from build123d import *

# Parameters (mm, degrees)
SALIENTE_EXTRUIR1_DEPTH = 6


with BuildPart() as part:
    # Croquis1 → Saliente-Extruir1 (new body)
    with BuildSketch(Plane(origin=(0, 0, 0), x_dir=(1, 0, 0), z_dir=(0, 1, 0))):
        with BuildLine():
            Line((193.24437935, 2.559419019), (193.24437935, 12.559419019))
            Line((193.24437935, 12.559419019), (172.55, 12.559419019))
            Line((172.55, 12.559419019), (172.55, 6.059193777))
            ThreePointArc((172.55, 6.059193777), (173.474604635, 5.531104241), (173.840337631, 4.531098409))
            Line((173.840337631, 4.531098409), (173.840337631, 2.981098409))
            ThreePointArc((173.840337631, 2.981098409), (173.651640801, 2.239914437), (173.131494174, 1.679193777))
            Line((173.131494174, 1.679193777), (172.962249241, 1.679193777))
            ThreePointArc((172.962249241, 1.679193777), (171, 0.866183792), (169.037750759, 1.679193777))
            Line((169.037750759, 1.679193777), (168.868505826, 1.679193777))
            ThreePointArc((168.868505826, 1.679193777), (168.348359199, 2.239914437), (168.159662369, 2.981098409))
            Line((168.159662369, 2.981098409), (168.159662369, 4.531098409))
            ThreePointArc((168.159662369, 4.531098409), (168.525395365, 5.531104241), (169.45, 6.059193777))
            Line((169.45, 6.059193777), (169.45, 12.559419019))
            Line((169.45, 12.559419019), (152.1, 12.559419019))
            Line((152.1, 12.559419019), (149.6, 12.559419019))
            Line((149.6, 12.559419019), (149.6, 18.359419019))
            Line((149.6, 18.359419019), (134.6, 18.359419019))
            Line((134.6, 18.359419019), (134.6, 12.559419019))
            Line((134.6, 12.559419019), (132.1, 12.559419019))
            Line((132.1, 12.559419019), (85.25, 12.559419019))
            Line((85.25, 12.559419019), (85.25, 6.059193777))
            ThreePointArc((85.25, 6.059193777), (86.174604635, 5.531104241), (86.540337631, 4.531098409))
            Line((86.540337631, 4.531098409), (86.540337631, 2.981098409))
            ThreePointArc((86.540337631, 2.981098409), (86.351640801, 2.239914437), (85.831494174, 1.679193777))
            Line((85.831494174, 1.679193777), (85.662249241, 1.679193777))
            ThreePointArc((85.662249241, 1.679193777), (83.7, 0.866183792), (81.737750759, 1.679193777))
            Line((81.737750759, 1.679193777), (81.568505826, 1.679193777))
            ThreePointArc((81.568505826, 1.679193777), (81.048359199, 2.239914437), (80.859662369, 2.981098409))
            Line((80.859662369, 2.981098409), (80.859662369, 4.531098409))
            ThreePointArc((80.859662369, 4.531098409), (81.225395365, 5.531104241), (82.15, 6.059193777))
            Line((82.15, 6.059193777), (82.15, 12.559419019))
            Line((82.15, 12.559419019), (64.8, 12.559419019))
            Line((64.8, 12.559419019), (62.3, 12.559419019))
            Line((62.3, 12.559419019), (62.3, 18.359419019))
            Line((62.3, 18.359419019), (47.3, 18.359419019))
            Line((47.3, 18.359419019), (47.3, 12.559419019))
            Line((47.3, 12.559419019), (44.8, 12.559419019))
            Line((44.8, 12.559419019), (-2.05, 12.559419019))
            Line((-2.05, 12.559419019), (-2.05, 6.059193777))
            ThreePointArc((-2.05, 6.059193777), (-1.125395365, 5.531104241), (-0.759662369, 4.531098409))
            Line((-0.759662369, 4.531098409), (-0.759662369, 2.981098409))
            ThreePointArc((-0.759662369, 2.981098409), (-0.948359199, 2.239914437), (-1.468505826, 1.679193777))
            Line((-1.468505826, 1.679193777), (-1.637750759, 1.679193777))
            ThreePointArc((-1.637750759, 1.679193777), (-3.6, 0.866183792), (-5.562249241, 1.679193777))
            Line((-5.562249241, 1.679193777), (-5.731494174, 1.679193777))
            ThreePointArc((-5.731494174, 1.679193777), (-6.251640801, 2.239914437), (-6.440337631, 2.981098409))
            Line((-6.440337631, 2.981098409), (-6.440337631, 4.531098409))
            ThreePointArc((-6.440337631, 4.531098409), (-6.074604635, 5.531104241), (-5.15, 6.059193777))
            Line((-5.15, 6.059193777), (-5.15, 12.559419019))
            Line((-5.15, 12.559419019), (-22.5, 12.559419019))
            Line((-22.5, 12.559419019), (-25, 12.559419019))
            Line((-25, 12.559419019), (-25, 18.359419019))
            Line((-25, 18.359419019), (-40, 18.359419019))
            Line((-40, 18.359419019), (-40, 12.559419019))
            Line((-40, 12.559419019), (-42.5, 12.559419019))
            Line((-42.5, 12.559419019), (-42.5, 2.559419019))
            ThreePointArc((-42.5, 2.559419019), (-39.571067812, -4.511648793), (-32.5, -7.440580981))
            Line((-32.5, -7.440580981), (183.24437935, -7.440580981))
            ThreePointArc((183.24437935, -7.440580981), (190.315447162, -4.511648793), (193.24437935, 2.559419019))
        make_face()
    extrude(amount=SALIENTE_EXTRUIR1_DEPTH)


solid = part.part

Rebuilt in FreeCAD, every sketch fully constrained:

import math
import FreeCAD as App
import Part
import Sketcher
from FreeCAD import Vector
Q = App.Units.Quantity

doc = App.newDocument("Part")
body = doc.addObject("PartDesign::Body", "Body")

# Sketch on XZ plane
sketch1 = doc.addObject("Sketcher::SketchObject", "Sketch")
body.addObject(sketch1)
sketch1.AttachmentSupport = (doc.XZ_Plane, [""])
sketch1.MapMode = "FlatFace"
sketch1.addGeometry([
    Part.LineSegment(Vector(193.24, -2.56, 0), Vector(193.24, -12.56, 0)),  # 0
    Part.LineSegment(Vector(193.24, -12.56, 0), Vector(172.55, -12.56, 0)),  # 1
    Part.LineSegment(Vector(172.55, -12.56, 0), Vector(172.55, -6.06, 0)),  # 2
    Part.ArcOfCircle(Part.Circle(Vector(172.29, -4.53, 0), Vector(0, 0, 1), 1.55), math.radians(-80), math.radians(0)),  # 3
    Part.LineSegment(Vector(173.84, -4.53, 0), Vector(173.84, -2.98, 0)),  # 4
    Part.ArcOfCircle(Part.Circle(Vector(172.29, -2.98, 0), Vector(0, 0, 1), 1.55), math.radians(0), math.radians(57)),  # 5
    Part.LineSegment(Vector(173.13, -1.68, 0), Vector(172.96, -1.68, 0)),  # 6
    Part.ArcOfCircle(Part.Circle(Vector(171, -3.64, 0), Vector(0, 0, 1), 2.77), math.radians(45), math.radians(135)),  # 7
    Part.LineSegment(Vector(169.04, -1.68, 0), Vector(168.87, -1.68, 0)),  # 8
    Part.ArcOfCircle(Part.Circle(Vector(169.71, -2.98, 0), Vector(0, 0, 1), 1.55), math.radians(123), math.radians(180)),  # 9
    Part.LineSegment(Vector(168.16, -2.98, 0), Vector(168.16, -4.53, 0)),  # 10
    Part.ArcOfCircle(Part.Circle(Vector(169.71, -4.53, 0), Vector(0, 0, 1), 1.55), math.radians(180), math.radians(260)),  # 11
    Part.LineSegment(Vector(169.45, -6.06, 0), Vector(169.45, -12.56, 0)),  # 12
    Part.LineSegment(Vector(169.45, -12.56, 0), Vector(149.6, -12.56, 0)),  # 13
    Part.LineSegment(Vector(149.6, -12.56, 0), Vector(149.6, -18.36, 0)),  # 14
    Part.LineSegment(Vector(149.6, -18.36, 0), Vector(134.6, -18.36, 0)),  # 15
    Part.LineSegment(Vector(134.6, -18.36, 0), Vector(134.6, -12.56, 0)),  # 16
    Part.LineSegment(Vector(134.6, -12.56, 0), Vector(85.25, -12.56, 0)),  # 17
    Part.LineSegment(Vector(85.25, -12.56, 0), Vector(85.25, -6.06, 0)),  # 18
    Part.ArcOfCircle(Part.Circle(Vector(84.99, -4.53, 0), Vector(0, 0, 1), 1.55), math.radians(-80), math.radians(0)),  # 19
    Part.LineSegment(Vector(86.54, -4.53, 0), Vector(86.54, -2.98, 0)),  # 20
    Part.ArcOfCircle(Part.Circle(Vector(84.99, -2.98, 0), Vector(0, 0, 1), 1.55), math.radians(0), math.radians(57)),  # 21
    Part.LineSegment(Vector(85.83, -1.68, 0), Vector(85.66, -1.68, 0)),  # 22
    Part.ArcOfCircle(Part.Circle(Vector(83.7, -3.64, 0), Vector(0, 0, 1), 2.77), math.radians(45), math.radians(135)),  # 23
    Part.LineSegment(Vector(81.74, -1.68, 0), Vector(81.57, -1.68, 0)),  # 24
    Part.ArcOfCircle(Part.Circle(Vector(82.41, -2.98, 0), Vector(0, 0, 1), 1.55), math.radians(123), math.radians(180)),  # 25
    Part.LineSegment(Vector(80.86, -2.98, 0), Vector(80.86, -4.53, 0)),  # 26
    Part.ArcOfCircle(Part.Circle(Vector(82.41, -4.53, 0), Vector(0, 0, 1), 1.55), math.radians(180), math.radians(260)),  # 27
    Part.LineSegment(Vector(82.15, -6.06, 0), Vector(82.15, -12.56, 0)),  # 28
    Part.LineSegment(Vector(82.15, -12.56, 0), Vector(62.3, -12.56, 0)),  # 29
    Part.LineSegment(Vector(62.3, -12.56, 0), Vector(62.3, -18.36, 0)),  # 30
    Part.LineSegment(Vector(62.3, -18.36, 0), Vector(47.3, -18.36, 0)),  # 31
    Part.LineSegment(Vector(47.3, -18.36, 0), Vector(47.3, -12.56, 0)),  # 32
    Part.LineSegment(Vector(47.3, -12.56, 0), Vector(-2.05, -12.56, 0)),  # 33
    Part.LineSegment(Vector(-2.05, -12.56, 0), Vector(-2.05, -6.06, 0)),  # 34
    Part.ArcOfCircle(Part.Circle(Vector(-2.31, -4.53, 0), Vector(0, 0, 1), 1.55), math.radians(-80), math.radians(0)),  # 35
    Part.LineSegment(Vector(-0.76, -4.53, 0), Vector(-0.76, -2.98, 0)),  # 36
    Part.ArcOfCircle(Part.Circle(Vector(-2.31, -2.98, 0), Vector(0, 0, 1), 1.55), math.radians(0), math.radians(57)),  # 37
    Part.LineSegment(Vector(-1.47, -1.68, 0), Vector(-1.64, -1.68, 0)),  # 38
    Part.ArcOfCircle(Part.Circle(Vector(-3.6, -3.64, 0), Vector(0, 0, 1), 2.77), math.radians(45), math.radians(135)),  # 39
    Part.LineSegment(Vector(-5.56, -1.68, 0), Vector(-5.73, -1.68, 0)),  # 40
    Part.ArcOfCircle(Part.Circle(Vector(-4.89, -2.98, 0), Vector(0, 0, 1), 1.55), math.radians(123), math.radians(180)),  # 41
    Part.LineSegment(Vector(-6.44, -2.98, 0), Vector(-6.44, -4.53, 0)),  # 42
    Part.ArcOfCircle(Part.Circle(Vector(-4.89, -4.53, 0), Vector(0, 0, 1), 1.55), math.radians(180), math.radians(260)),  # 43
    Part.LineSegment(Vector(-5.15, -6.06, 0), Vector(-5.15, -12.56, 0)),  # 44
    Part.LineSegment(Vector(-5.15, -12.56, 0), Vector(-25, -12.56, 0)),  # 45
    Part.LineSegment(Vector(-25, -12.56, 0), Vector(-25, -18.36, 0)),  # 46
    Part.LineSegment(Vector(-25, -18.36, 0), Vector(-40, -18.36, 0)),  # 47
    Part.LineSegment(Vector(-40, -18.36, 0), Vector(-40, -12.56, 0)),  # 48
    Part.LineSegment(Vector(-40, -12.56, 0), Vector(-42.5, -12.56, 0)),  # 49
    Part.LineSegment(Vector(-42.5, -12.56, 0), Vector(-42.5, -2.56, 0)),  # 50
    Part.ArcOfCircle(Part.Circle(Vector(-32.5, -2.56, 0), Vector(0, 0, 1), 10), math.radians(90), math.radians(180)),  # 51
    Part.LineSegment(Vector(-32.5, 7.44, 0), Vector(183.24, 7.44, 0)),  # 52
    Part.ArcOfCircle(Part.Circle(Vector(183.24, -2.56, 0), Vector(0, 0, 1), 10), math.radians(0), math.radians(90)),  # 53
], False)
sketch1.addConstraint([
    Sketcher.Constraint("Coincident", 0, 2, 1, 1),
    Sketcher.Constraint("Coincident", 1, 2, 2, 1),
    Sketcher.Constraint("Coincident", 2, 2, 3, 1),
    Sketcher.Constraint("Tangent", 3, 2, 4, 1),
    Sketcher.Constraint("Tangent", 4, 2, 5, 1),
    Sketcher.Constraint("Coincident", 5, 2, 6, 1),
    Sketcher.Constraint("Coincident", 6, 2, 7, 1),
    Sketcher.Constraint("Coincident", 7, 2, 8, 1),
    Sketcher.Constraint("Coincident", 8, 2, 9, 1),
    Sketcher.Constraint("Tangent", 9, 2, 10, 1),
    Sketcher.Constraint("Tangent", 10, 2, 11, 1),
    Sketcher.Constraint("Coincident", 11, 2, 12, 1),
    Sketcher.Constraint("Coincident", 12, 2, 13, 1),
    Sketcher.Constraint("Coincident", 13, 2, 14, 1),
    Sketcher.Constraint("Coincident", 14, 2, 15, 1),
    Sketcher.Constraint("Coincident", 15, 2, 16, 1),
    Sketcher.Constraint("Coincident", 16, 2, 17, 1),
    Sketcher.Constraint("Coincident", 17, 2, 18, 1),
    Sketcher.Constraint("Coincident", 18, 2, 19, 1),
    Sketcher.Constraint("Tangent", 19, 2, 20, 1),
    Sketcher.Constraint("Tangent", 20, 2, 21, 1),
    Sketcher.Constraint("Coincident", 21, 2, 22, 1),
    Sketcher.Constraint("Coincident", 22, 2, 23, 1),
    Sketcher.Constraint("Coincident", 23, 2, 24, 1),
    Sketcher.Constraint("Coincident", 24, 2, 25, 1),
    Sketcher.Constraint("Tangent", 25, 2, 26, 1),
    Sketcher.Constraint("Tangent", 26, 2, 27, 1),
    Sketcher.Constraint("Coincident", 27, 2, 28, 1),
    Sketcher.Constraint("Coincident", 28, 2, 29, 1),
    Sketcher.Constraint("Coincident", 29, 2, 30, 1),
    Sketcher.Constraint("Coincident", 30, 2, 31, 1),
    Sketcher.Constraint("Coincident", 31, 2, 32, 1),
    Sketcher.Constraint("Coincident", 32, 2, 33, 1),
    Sketcher.Constraint("Coincident", 33, 2, 34, 1),
    Sketcher.Constraint("Coincident", 34, 2, 35, 1),
    Sketcher.Constraint("Tangent", 35, 2, 36, 1),
    Sketcher.Constraint("Tangent", 36, 2, 37, 1),
    Sketcher.Constraint("Coincident", 37, 2, 38, 1),
    Sketcher.Constraint("Coincident", 38, 2, 39, 1),
    Sketcher.Constraint("Coincident", 39, 2, 40, 1),
    Sketcher.Constraint("Coincident", 40, 2, 41, 1),
    Sketcher.Constraint("Tangent", 41, 2, 42, 1),
    Sketcher.Constraint("Tangent", 42, 2, 43, 1),
    Sketcher.Constraint("Coincident", 43, 2, 44, 1),
    Sketcher.Constraint("Coincident", 44, 2, 45, 1),
    Sketcher.Constraint("Coincident", 45, 2, 46, 1),
    Sketcher.Constraint("Coincident", 46, 2, 47, 1),
    Sketcher.Constraint("Coincident", 47, 2, 48, 1),
    Sketcher.Constraint("Coincident", 48, 2, 49, 1),
    Sketcher.Constraint("Coincident", 49, 2, 50, 1),
    Sketcher.Constraint("Tangent", 50, 2, 51, 2),
    Sketcher.Constraint("Tangent", 51, 1, 52, 1),
    Sketcher.Constraint("Tangent", 52, 2, 53, 2),
    Sketcher.Constraint("Tangent", 53, 1, 0, 1),
    Sketcher.Constraint("Vertical", 0),
    Sketcher.Constraint("Horizontal", 1),
    Sketcher.Constraint("Vertical", 2),
    Sketcher.Constraint("Vertical", 4),
    Sketcher.Constraint("Horizontal", 6),
    Sketcher.Constraint("Horizontal", 8),
    Sketcher.Constraint("Vertical", 10),
    Sketcher.Constraint("Vertical", 12),
    Sketcher.Constraint("Horizontal", 13),
    Sketcher.Constraint("Vertical", 14),
    Sketcher.Constraint("Horizontal", 15),
    Sketcher.Constraint("Vertical", 16),
    Sketcher.Constraint("Horizontal", 17),
    Sketcher.Constraint("Vertical", 18),
    Sketcher.Constraint("Vertical", 20),
    Sketcher.Constraint("Horizontal", 22),
    Sketcher.Constraint("Horizontal", 24),
    Sketcher.Constraint("Vertical", 26),
    Sketcher.Constraint("Vertical", 28),
    Sketcher.Constraint("Horizontal", 29),
    Sketcher.Constraint("Vertical", 30),
    Sketcher.Constraint("Horizontal", 31),
    Sketcher.Constraint("Vertical", 32),
    Sketcher.Constraint("Horizontal", 33),
    Sketcher.Constraint("Vertical", 34),
    Sketcher.Constraint("Vertical", 36),
    Sketcher.Constraint("Horizontal", 38),
    Sketcher.Constraint("Horizontal", 40),
    Sketcher.Constraint("Vertical", 42),
    Sketcher.Constraint("Vertical", 44),
    Sketcher.Constraint("Horizontal", 45),
    Sketcher.Constraint("Vertical", 46),
    Sketcher.Constraint("Horizontal", 47),
    Sketcher.Constraint("Vertical", 48),
    Sketcher.Constraint("Horizontal", 49),
    Sketcher.Constraint("Vertical", 50),
    Sketcher.Constraint("Horizontal", 52),
    Sketcher.Constraint("Equal", 3, 5),
    Sketcher.Constraint("Equal", 5, 9),
    Sketcher.Constraint("Equal", 9, 11),
    Sketcher.Constraint("Equal", 11, 19),
    Sketcher.Constraint("Equal", 19, 21),
    Sketcher.Constraint("Equal", 7, 23),
    Sketcher.Constraint("Equal", 21, 25),
    Sketcher.Constraint("Equal", 25, 27),
    Sketcher.Constraint("Equal", 27, 35),
    Sketcher.Constraint("Equal", 35, 37),
    Sketcher.Constraint("Equal", 23, 39),
    Sketcher.Constraint("Equal", 37, 41),
    Sketcher.Constraint("Equal", 41, 43),
    Sketcher.Constraint("Equal", 51, 53),
    Sketcher.Constraint("Horizontal", 5, 3, 9, 3),
    Sketcher.Constraint("Horizontal", 3, 3, 11, 3),
    Sketcher.Constraint("Horizontal", 11, 3, 19, 3),
    Sketcher.Constraint("Horizontal", 9, 3, 21, 3),
    Sketcher.Constraint("Horizontal", 7, 3, 23, 3),
    Sketcher.Constraint("Horizontal", 21, 3, 25, 3),
    Sketcher.Constraint("Horizontal", 19, 3, 27, 3),
    Sketcher.Constraint("Horizontal", 27, 3, 35, 3),
    Sketcher.Constraint("Horizontal", 25, 3, 37, 3),
    Sketcher.Constraint("Horizontal", 23, 3, 39, 3),
    Sketcher.Constraint("Horizontal", 37, 3, 41, 3),
    Sketcher.Constraint("Horizontal", 35, 3, 43, 3),
    Sketcher.Constraint("Horizontal", 6, 2, 7, 2),
    Sketcher.Constraint("Horizontal", 2, 2, 11, 2),
    Sketcher.Constraint("Horizontal", 1, 2, 12, 2),
    Sketcher.Constraint("Horizontal", 13, 2, 16, 2),
    Sketcher.Constraint("Horizontal", 11, 2, 18, 2),
    Sketcher.Constraint("Horizontal", 8, 2, 21, 2),
    Sketcher.Constraint("Horizontal", 22, 2, 23, 2),
    Sketcher.Constraint("Horizontal", 18, 2, 27, 2),
    Sketcher.Constraint("Horizontal", 17, 2, 28, 2),
    Sketcher.Constraint("Horizontal", 15, 2, 30, 2),
    Sketcher.Constraint("Horizontal", 29, 2, 32, 2),
    Sketcher.Constraint("Horizontal", 27, 2, 34, 2),
    Sketcher.Constraint("Horizontal", 24, 2, 37, 2),
    Sketcher.Constraint("Horizontal", 38, 2, 39, 2),
    Sketcher.Constraint("Horizontal", 34, 2, 43, 2),
    Sketcher.Constraint("Horizontal", 33, 2, 44, 2),
    Sketcher.Constraint("Horizontal", 31, 2, 46, 2),
    Sketcher.Constraint("Horizontal", 45, 2, 48, 2),
    Sketcher.Constraint("Equal", 6, 8),
    Sketcher.Constraint("Equal", 8, 22),
    Sketcher.Constraint("Equal", 22, 24),
    Sketcher.Constraint("Equal", 13, 29),
    Sketcher.Constraint("Equal", 15, 31),
    Sketcher.Constraint("Equal", 17, 33),
    Sketcher.Constraint("Equal", 24, 38),
    Sketcher.Constraint("Equal", 38, 40),
    Sketcher.Constraint("Equal", 29, 45),
    Sketcher.Constraint("Equal", 31, 47),
    Sketcher.Constraint("Radius", 51, Q("10 mm")),
    Sketcher.Constraint("DistanceX", 15, 2, 15, 1, Q("15 mm")),
    Sketcher.Constraint("DistanceY", 0, 2, 0, 1, Q("10 mm")),
    Sketcher.Constraint("Radius", 3, Q("1.55 mm")),
    Sketcher.Constraint("DistanceX", 49, 2, 49, 1, Q("2.5 mm")),
    Sketcher.Constraint("DistanceY", 14, 2, 14, 1, Q("5.8 mm")),
    Sketcher.Constraint("DistanceX", -1, 1, 7, 3, Q("171 mm")),
    Sketcher.Constraint("DistanceX", 45, 2, -1, 1, Q("25 mm")),
    Sketcher.Constraint("DistanceX", 13, 2, 13, 1, Q("19.85 mm")),
    Sketcher.Constraint("DistanceX", 17, 2, 17, 1, Q("49.35 mm")),
    Sketcher.Constraint("DistanceY", 4, 1, 4, 2, Q("1.55 mm")),
    Sketcher.Constraint("Radius", 7, Q("2.774509 mm")),
    Sketcher.Constraint("DistanceX", 1, 2, 1, 1, Q("20.694379 mm")),
    Sketcher.Constraint("DistanceY", 3, 3, -1, 1, Q("4.531098 mm")),
    Sketcher.Constraint("DistanceX", 6, 2, 6, 1, Q("0.169245 mm")),
    Sketcher.Constraint("DistanceY", 2, 1, 2, 2, Q("6.500225 mm")),
    Sketcher.Constraint("DistanceY", 51, 3, -1, 1, Q("2.559419 mm")),
    Sketcher.Constraint("DistanceX", -1, 1, 6, 2, Q("172.962249 mm")),
])
pad1 = doc.addObject("PartDesign::Pad", "Pad")
body.addObject(pad1)
pad1.Profile = sketch1
pad1.Length = 6
pad1.Reversed = True

doc.recompute()
